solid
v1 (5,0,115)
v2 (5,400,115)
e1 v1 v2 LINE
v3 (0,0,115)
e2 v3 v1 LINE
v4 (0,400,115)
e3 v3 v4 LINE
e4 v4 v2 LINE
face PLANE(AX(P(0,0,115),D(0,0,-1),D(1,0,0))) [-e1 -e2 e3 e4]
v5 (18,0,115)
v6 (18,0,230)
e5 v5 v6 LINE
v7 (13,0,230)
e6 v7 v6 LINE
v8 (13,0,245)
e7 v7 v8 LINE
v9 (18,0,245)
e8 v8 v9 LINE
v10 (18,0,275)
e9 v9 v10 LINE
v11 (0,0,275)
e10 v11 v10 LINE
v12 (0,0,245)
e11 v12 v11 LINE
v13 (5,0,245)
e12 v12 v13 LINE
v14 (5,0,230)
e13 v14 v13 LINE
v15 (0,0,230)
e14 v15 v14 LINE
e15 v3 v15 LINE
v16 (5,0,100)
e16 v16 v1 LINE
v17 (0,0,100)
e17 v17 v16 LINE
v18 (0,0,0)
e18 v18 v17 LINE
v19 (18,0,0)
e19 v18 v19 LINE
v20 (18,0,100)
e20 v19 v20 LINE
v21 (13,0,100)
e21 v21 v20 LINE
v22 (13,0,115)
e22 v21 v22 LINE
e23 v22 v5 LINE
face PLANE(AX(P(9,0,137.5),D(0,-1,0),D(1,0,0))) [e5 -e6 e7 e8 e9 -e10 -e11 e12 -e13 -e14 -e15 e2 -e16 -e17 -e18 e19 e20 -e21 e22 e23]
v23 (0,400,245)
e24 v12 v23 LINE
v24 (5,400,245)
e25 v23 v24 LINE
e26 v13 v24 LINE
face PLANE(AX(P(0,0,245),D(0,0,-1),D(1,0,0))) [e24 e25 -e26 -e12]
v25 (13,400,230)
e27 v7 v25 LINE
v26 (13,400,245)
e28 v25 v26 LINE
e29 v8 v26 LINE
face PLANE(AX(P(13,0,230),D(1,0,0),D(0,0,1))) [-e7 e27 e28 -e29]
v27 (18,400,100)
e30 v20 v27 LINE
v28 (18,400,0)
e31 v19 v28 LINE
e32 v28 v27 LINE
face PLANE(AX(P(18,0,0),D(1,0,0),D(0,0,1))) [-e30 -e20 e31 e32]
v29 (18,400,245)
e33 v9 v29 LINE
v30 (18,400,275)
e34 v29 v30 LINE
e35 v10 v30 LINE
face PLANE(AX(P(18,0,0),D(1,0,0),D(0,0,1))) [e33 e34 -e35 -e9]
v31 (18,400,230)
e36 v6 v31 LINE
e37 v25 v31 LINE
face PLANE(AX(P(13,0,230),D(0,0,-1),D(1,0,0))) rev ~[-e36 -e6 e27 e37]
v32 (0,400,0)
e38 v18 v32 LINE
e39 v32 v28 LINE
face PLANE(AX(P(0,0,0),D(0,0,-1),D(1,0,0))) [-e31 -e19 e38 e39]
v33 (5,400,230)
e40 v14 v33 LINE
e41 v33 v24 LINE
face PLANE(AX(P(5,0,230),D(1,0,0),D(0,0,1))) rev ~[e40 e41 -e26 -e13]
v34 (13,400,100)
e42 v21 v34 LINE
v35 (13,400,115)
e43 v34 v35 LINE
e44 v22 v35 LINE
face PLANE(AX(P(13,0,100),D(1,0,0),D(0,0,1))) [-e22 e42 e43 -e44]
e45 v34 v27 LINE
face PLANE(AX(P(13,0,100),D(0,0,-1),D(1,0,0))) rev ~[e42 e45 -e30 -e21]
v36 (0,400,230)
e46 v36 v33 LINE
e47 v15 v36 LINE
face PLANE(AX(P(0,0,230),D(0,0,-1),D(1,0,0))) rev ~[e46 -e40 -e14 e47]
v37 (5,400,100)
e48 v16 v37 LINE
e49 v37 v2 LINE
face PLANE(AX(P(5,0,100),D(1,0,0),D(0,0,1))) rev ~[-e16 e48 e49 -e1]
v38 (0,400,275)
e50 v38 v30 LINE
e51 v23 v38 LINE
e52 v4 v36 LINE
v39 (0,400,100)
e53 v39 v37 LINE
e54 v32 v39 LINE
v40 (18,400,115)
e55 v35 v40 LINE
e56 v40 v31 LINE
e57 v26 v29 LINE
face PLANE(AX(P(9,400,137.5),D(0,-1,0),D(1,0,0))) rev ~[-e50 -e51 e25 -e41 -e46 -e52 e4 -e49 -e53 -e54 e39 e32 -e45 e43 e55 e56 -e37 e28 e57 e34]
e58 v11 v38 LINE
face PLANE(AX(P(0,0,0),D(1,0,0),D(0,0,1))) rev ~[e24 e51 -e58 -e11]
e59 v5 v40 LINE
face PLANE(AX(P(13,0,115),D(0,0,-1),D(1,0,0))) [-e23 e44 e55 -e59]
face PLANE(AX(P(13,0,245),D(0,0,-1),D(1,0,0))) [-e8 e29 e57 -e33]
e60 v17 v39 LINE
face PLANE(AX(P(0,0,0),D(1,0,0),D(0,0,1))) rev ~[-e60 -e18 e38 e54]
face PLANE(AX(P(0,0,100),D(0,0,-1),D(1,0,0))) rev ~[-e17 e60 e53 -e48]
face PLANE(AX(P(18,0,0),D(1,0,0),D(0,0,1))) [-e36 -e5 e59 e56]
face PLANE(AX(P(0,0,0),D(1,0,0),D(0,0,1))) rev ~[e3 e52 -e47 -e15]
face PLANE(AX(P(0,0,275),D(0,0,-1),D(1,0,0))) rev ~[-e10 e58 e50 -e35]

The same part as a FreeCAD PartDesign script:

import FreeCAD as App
import Part
import Sketcher
from FreeCAD import Vector
Q = App.Units.Quantity


def add_polygon(sketch, points):
    """Adds a closed chain of lines whose ends are joined by coincident constraints."""
    first, n = sketch.GeometryCount, len(points)
    for a, b in zip(points, points[1:] + points[:1]):
        sketch.addGeometry(Part.LineSegment(App.Vector(*a, 0), App.Vector(*b, 0)), False)
    for i in range(n):
        sketch.addConstraint(Sketcher.Constraint("Coincident", first + i, 2, first + (i + 1) % n, 1))

doc = App.newDocument("Part")
body = doc.addObject("PartDesign::Body", "Body")

# Sketch on XZ plane
sketch1 = body.newObject("Sketcher::SketchObject", "Sketch")
sketch1.AttachmentSupport = (doc.getObject("XZ_Plane"), [""])
sketch1.MapMode = "FlatFace"
add_polygon(sketch1, [(0, 275), (0, 0), (18, 0), (18, 275)])  # lines 0-3
sketch1.addConstraint([
    Sketcher.Constraint("Vertical", 0),
    Sketcher.Constraint("Horizontal", 1),
    Sketcher.Constraint("Vertical", 2),
    Sketcher.Constraint("Horizontal", 3),
    Sketcher.Constraint("Coincident", 0, 2, -1, 1),
    Sketcher.Constraint("DistanceX", 1, 1, 1, 2, Q("18 mm")),
    Sketcher.Constraint("DistanceY", 0, 2, 0, 1, Q("275 mm")),
])
pad1 = body.newObject("PartDesign::Pad", "Pad")
pad1.Profile = sketch1
pad1.Length = 400
pad1.Reversed = True

# Sketch on XZ plane
sketch2 = body.newObject("Sketcher::SketchObject", "Sketch001")
sketch2.AttachmentSupport = (doc.getObject("XZ_Plane"), [""])
sketch2.MapMode = "FlatFace"
add_polygon(sketch2, [(13, 245), (13, 230), (18, 230), (18, 245)])  # lines 0-3
add_polygon(sketch2, [(13, 115), (13, 100), (18, 100), (18, 115)])  # lines 4-7
add_polygon(sketch2, [(0, 245), (0, 230), (5, 230), (5, 245)])  # lines 8-11
add_polygon(sketch2, [(0, 115), (0, 100), (5, 100), (5, 115)])  # lines 12-15
sketch2.addConstraint([
    Sketcher.Constraint("Vertical", 0),
    Sketcher.Constraint("Horizontal", 1),
    Sketcher.Constraint("Vertical", 2),
    Sketcher.Constraint("Horizontal", 3),
    Sketcher.Constraint("Vertical", 4),
    Sketcher.Constraint("Horizontal", 5),
    Sketcher.Constraint("Vertical", 6),
    Sketcher.Constraint("Horizontal", 7),
    Sketcher.Constraint("Vertical", 8),
    Sketcher.Constraint("Horizontal", 9),
    Sketcher.Constraint("Vertical", 10),
    Sketcher.Constraint("Horizontal", 11),
    Sketcher.Constraint("Vertical", 12),
    Sketcher.Constraint("Horizontal", 13),
    Sketcher.Constraint("Vertical", 14),
    Sketcher.Constraint("Horizontal", 15),
    Sketcher.Constraint("PointOnObject", 8, 2, -2),
    Sketcher.Constraint("PointOnObject", 12, 2, -2),
    Sketcher.Constraint("Horizontal", 1, 2, 8, 2),
    Sketcher.Constraint("Horizontal", 3, 2, 10, 2),
    Sketcher.Constraint("Horizontal", 5, 2, 12, 2),
    Sketcher.Constraint("Horizontal", 7, 2, 14, 2),
    Sketcher.Constraint("Vertical", 3, 2, 4, 2),
    Sketcher.Constraint("Vertical", 2, 2, 5, 2),
    Sketcher.Constraint("Vertical", 10, 2, 13, 2),
    Sketcher.Constraint("Equal", 7, 9),
    Sketcher.Constraint("Equal", 2, 4),
    Sketcher.Constraint("DistanceX", 1, 1, 1, 2, Q("5 mm")),
    Sketcher.Constraint("DistanceY", 0, 2, 0, 1, Q("15 mm")),
    Sketcher.Constraint("DistanceX", -1, 1, 0, 2, Q("13 mm")),
    Sketcher.Constraint("DistanceY", -1, 1, 0, 2, Q("230 mm")),
    Sketcher.Constraint("DistanceY", -1, 1, 4, 2, Q("100 mm")),
])
pocket1 = body.newObject("PartDesign::Pocket", "Pocket")
pocket1.Profile = sketch2
pocket1.Type = "ThroughAll"

doc.recompute()
